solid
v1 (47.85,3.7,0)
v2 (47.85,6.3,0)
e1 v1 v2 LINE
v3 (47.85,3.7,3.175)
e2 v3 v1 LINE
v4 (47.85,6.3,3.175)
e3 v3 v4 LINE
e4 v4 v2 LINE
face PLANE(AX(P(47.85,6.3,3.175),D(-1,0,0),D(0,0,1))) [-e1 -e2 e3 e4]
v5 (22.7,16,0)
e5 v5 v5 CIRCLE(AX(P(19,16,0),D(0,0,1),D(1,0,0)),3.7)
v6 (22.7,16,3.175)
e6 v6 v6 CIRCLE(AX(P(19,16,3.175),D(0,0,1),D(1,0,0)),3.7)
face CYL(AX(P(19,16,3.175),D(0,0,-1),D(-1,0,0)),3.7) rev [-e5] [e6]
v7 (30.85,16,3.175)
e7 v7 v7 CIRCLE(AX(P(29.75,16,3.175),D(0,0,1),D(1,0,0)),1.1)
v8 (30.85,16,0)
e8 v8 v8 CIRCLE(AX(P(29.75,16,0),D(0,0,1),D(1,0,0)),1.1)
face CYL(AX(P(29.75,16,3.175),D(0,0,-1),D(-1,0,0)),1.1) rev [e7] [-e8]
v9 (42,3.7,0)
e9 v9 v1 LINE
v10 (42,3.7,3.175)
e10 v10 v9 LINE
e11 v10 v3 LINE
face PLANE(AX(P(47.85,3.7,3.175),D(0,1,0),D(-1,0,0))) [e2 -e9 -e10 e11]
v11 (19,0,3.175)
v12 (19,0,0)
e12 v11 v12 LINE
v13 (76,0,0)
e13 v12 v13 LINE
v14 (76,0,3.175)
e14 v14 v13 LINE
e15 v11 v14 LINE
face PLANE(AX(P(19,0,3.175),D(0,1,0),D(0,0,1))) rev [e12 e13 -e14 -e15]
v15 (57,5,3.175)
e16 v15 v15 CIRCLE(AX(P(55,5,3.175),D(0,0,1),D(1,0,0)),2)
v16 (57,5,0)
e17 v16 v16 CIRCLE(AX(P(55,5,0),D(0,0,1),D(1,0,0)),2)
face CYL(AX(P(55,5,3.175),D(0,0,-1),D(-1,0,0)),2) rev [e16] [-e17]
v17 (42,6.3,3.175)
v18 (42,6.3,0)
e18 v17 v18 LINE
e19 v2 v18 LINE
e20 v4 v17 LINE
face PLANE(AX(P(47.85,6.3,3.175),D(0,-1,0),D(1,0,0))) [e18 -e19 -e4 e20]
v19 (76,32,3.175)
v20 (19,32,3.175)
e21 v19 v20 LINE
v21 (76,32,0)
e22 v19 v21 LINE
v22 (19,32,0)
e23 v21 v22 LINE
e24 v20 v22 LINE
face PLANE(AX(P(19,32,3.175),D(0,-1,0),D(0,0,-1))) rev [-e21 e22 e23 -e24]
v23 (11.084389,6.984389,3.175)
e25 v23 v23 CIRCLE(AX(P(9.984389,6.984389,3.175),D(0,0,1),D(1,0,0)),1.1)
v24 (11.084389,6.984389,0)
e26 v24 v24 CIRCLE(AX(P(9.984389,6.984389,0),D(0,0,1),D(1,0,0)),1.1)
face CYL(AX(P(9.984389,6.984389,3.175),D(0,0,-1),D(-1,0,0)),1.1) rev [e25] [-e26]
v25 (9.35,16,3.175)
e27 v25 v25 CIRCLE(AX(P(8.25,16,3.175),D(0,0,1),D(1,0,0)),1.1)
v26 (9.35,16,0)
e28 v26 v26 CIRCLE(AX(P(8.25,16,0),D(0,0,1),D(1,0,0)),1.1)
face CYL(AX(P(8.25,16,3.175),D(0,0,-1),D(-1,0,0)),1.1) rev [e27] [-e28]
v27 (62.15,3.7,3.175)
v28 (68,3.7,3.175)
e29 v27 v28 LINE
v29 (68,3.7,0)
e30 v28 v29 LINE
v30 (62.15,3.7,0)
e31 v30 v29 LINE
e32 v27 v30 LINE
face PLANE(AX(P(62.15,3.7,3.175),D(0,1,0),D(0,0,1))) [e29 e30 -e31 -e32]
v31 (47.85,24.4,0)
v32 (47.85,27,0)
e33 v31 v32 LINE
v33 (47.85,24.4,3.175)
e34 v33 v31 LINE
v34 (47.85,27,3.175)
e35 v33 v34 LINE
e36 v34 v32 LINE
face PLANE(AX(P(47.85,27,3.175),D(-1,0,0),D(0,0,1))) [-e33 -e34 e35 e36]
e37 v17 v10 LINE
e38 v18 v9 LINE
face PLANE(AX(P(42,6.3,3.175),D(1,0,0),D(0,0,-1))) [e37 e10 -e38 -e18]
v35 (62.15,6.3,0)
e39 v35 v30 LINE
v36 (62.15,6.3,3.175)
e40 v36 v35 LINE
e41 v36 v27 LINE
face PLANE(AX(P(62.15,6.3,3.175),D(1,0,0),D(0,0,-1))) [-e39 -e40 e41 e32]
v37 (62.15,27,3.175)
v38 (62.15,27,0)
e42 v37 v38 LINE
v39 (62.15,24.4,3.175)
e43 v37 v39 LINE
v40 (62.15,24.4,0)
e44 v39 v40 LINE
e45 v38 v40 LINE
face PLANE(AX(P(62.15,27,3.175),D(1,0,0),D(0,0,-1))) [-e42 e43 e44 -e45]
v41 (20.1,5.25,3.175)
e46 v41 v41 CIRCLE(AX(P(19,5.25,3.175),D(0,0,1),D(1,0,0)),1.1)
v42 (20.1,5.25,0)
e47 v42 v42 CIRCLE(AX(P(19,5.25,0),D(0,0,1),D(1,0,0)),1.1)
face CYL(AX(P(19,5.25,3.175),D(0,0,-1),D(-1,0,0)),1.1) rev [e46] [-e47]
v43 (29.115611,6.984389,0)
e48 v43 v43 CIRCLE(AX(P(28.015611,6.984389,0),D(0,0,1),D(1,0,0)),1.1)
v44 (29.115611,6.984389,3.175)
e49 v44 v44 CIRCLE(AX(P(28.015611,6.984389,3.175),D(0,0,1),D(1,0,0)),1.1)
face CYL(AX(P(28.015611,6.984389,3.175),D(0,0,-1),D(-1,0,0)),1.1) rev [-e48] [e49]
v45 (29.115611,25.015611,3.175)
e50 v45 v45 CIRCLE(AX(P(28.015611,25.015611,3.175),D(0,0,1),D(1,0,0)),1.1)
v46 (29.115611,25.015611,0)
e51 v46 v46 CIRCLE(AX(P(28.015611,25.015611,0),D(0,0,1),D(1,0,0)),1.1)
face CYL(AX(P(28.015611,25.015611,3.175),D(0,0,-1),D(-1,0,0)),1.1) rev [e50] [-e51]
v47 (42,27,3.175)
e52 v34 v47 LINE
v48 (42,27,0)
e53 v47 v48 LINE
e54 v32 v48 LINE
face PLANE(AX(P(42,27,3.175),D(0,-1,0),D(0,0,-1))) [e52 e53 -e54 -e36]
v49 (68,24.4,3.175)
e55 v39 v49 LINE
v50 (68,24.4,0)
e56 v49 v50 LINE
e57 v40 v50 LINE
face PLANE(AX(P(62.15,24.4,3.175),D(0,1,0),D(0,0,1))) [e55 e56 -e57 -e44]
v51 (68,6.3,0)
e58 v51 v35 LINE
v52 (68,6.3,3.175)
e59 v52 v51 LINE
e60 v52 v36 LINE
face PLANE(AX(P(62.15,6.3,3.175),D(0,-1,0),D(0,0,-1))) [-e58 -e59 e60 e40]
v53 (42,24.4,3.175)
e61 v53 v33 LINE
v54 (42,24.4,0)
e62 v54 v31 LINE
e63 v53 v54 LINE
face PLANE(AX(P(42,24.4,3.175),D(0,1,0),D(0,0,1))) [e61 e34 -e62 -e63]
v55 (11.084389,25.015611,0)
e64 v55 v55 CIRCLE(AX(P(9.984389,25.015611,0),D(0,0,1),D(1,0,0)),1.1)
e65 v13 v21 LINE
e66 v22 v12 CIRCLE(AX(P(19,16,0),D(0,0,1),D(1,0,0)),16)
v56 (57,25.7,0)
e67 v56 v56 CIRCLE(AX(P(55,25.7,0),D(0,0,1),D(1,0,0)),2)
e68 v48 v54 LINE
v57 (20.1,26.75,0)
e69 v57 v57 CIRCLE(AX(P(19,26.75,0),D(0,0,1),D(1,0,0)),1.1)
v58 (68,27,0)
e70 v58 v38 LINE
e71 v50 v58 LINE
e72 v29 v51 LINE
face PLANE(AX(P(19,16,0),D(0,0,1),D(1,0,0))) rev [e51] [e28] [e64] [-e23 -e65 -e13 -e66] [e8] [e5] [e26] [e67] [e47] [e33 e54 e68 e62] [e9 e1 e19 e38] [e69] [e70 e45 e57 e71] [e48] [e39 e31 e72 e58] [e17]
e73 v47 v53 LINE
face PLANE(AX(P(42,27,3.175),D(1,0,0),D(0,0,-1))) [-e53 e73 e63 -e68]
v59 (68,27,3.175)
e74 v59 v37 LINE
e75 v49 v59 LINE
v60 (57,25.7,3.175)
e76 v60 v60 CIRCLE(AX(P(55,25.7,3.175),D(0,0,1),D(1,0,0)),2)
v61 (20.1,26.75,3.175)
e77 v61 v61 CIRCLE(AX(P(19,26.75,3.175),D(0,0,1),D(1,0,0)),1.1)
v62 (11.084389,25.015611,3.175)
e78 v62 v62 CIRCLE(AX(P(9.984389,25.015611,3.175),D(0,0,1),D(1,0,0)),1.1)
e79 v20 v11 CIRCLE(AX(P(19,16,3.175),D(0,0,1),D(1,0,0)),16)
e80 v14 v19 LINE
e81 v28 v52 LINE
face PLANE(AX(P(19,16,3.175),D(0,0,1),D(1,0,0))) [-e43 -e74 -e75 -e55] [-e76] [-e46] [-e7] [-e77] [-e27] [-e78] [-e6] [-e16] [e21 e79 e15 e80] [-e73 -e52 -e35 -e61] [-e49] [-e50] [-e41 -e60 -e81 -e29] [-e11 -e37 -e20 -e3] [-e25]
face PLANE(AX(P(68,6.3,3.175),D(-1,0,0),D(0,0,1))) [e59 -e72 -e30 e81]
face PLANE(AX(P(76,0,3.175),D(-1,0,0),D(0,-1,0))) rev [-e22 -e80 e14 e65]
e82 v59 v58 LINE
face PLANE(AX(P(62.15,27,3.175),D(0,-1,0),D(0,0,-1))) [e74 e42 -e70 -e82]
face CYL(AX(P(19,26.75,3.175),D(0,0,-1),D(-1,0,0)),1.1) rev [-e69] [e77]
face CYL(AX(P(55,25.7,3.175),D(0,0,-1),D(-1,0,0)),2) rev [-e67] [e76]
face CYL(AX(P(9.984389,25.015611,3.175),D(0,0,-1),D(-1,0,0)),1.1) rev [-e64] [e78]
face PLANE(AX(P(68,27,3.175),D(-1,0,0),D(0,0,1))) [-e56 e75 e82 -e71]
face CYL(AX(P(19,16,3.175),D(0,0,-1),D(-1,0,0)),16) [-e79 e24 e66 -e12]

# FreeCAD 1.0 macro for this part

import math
import FreeCAD as App
import Part
import Sketcher

doc = App.newDocument("Part")
body = doc.addObject("PartDesign::Body", "Body")

# Sketch on XY plane
sketch1 = doc.addObject("Sketcher::SketchObject", "Sketch")
body.addObject(sketch1)
sketch1.AttachmentSupport = (doc.XY_Plane, [""])
sketch1.MapMode = "FlatFace"
sketch1.addGeometry([
    Part.LineSegment(App.Vector(19, 0, 0), App.Vector(76, 0, 0)),  # 0
    Part.LineSegment(App.Vector(76, 0, 0), App.Vector(76, 32, 0)),  # 1
    Part.LineSegment(App.Vector(76, 32, 0), App.Vector(19, 32, 0)),  # 2
    Part.ArcOfCircle(Part.Circle(App.Vector(19, 16, 0), App.Vector(0, 0, 1), 16), math.radians(90), math.radians(270)),  # 3
    Part.Circle(App.Vector(19, 5.2, 0), App.Vector(0, 0, 1), 1.1),  # 4
    Part.Circle(App.Vector(10, 7, 0), App.Vector(0, 0, 1), 1.1),  # 5
    Part.Circle(App.Vector(28, 7, 0), App.Vector(0, 0, 1), 1.1),  # 6
    Part.LineSegment(App.Vector(47.9, 3.7, 0), App.Vector(42, 3.7, 0)),  # 7
    Part.LineSegment(App.Vector(42, 3.7, 0), App.Vector(42, 6.3, 0)),  # 8
    Part.LineSegment(App.Vector(42, 6.3, 0), App.Vector(47.9, 6.3, 0)),  # 9
    Part.LineSegment(App.Vector(47.9, 6.3, 0), App.Vector(47.9, 3.7, 0)),  # 10
    Part.Circle(App.Vector(55, 5, 0), App.Vector(0, 0, 1), 2),  # 11
    Part.LineSegment(App.Vector(68, 3.7, 0), App.Vector(62.1, 3.7, 0)),  # 12
    Part.LineSegment(App.Vector(62.1, 3.7, 0), App.Vector(62.1, 6.3, 0)),  # 13
    Part.LineSegment(App.Vector(62.1, 6.3, 0), App.Vector(68, 6.3, 0)),  # 14
    Part.LineSegment(App.Vector(68, 6.3, 0), App.Vector(68, 3.7, 0)),  # 15
    Part.Circle(App.Vector(8.2, 16, 0), App.Vector(0, 0, 1), 1.1),  # 16
    Part.Circle(App.Vector(19, 16, 0), App.Vector(0, 0, 1), 3.7),  # 17
    Part.Circle(App.Vector(29.8, 16, 0), App.Vector(0, 0, 1), 1.1),  # 18
    Part.Circle(App.Vector(10, 25, 0), App.Vector(0, 0, 1), 1.1),  # 19
    Part.Circle(App.Vector(19, 26.8, 0), App.Vector(0, 0, 1), 1.1),  # 20
    Part.Circle(App.Vector(28, 25, 0), App.Vector(0, 0, 1), 1.1),  # 21
    Part.LineSegment(App.Vector(47.9, 24.4, 0), App.Vector(42, 24.4, 0)),  # 22
    Part.LineSegment(App.Vector(42, 24.4, 0), App.Vector(42, 27, 0)),  # 23
    Part.LineSegment(App.Vector(42, 27, 0), App.Vector(47.9, 27, 0)),  # 24
    Part.LineSegment(App.Vector(47.9, 27, 0), App.Vector(47.9, 24.4, 0)),  # 25
    Part.Circle(App.Vector(55, 25.7, 0), App.Vector(0, 0, 1), 2),  # 26
    Part.LineSegment(App.Vector(68, 24.4, 0), App.Vector(62.1, 24.4, 0)),  # 27
    Part.LineSegment(App.Vector(62.1, 24.4, 0), App.Vector(62.1, 27, 0)),  # 28
    Part.LineSegment(App.Vector(62.1, 27, 0), App.Vector(68, 27, 0)),  # 29
    Part.LineSegment(App.Vector(68, 27, 0), App.Vector(68, 24.4, 0)),  # 30
], False)
sketch1.addConstraint([
    Sketcher.Constraint("Coincident", 0, 2, 1, 1),
    Sketcher.Constraint("Coincident", 1, 2, 2, 1),
    Sketcher.Constraint("Tangent", 2, 2, 3, 1),
    Sketcher.Constraint("Tangent", 3, 2, 0, 1),
    Sketcher.Constraint("Coincident", 7, 2, 8, 1),
    Sketcher.Constraint("Coincident", 8, 2, 9, 1),
    Sketcher.Constraint("Coincident", 9, 2, 10, 1),
    Sketcher.Constraint("Coincident", 10, 2, 7, 1),
    Sketcher.Constraint("Coincident", 12, 2, 13, 1),
    Sketcher.Constraint("Coincident", 13, 2, 14, 1),
    Sketcher.Constraint("Coincident", 14, 2, 15, 1),
    Sketcher.Constraint("Coincident", 15, 2, 12, 1),
    Sketcher.Constraint("Coincident", 22, 2, 23, 1),
    Sketcher.Constraint("Coincident", 23, 2, 24, 1),
    Sketcher.Constraint("Coincident", 24, 2, 25, 1),
    Sketcher.Constraint("Coincident", 25, 2, 22, 1),
    Sketcher.Constraint("Coincident", 27, 2, 28, 1),
    Sketcher.Constraint("Coincident", 28, 2, 29, 1),
    Sketcher.Constraint("Coincident", 29, 2, 30, 1),
    Sketcher.Constraint("Coincident", 30, 2, 27, 1),
    Sketcher.Constraint("Horizontal", 0),
    Sketcher.Constraint("Vertical", 1),
    Sketcher.Constraint("Horizontal", 2),
    Sketcher.Constraint("Horizontal", 7),
    Sketcher.Constraint("Vertical", 8),
    Sketcher.Constraint("Horizontal", 9),
    Sketcher.Constraint("Vertical", 10),
    Sketcher.Constraint("Horizontal", 12),
    Sketcher.Constraint("Vertical", 13),
    Sketcher.Constraint("Horizontal", 14),
    Sketcher.Constraint("Vertical", 15),
    Sketcher.Constraint("Horizontal", 22),
    Sketcher.Constraint("Vertical", 23),
    Sketcher.Constraint("Horizontal", 24),
    Sketcher.Constraint("Vertical", 25),
    Sketcher.Constraint("Horizontal", 27),
    Sketcher.Constraint("Vertical", 28),
    Sketcher.Constraint("Horizontal", 29),
    Sketcher.Constraint("Vertical", 30),
    Sketcher.Constraint("Coincident", 17, 3, 3, 3),
    Sketcher.Constraint("Equal", 4, 5),
    Sketcher.Constraint("Equal", 5, 6),
    Sketcher.Constraint("Equal", 6, 16),
    Sketcher.Constraint("Equal", 16, 18),
    Sketcher.Constraint("Equal", 18, 19),
    Sketcher.Constraint("Equal", 19, 20),
    Sketcher.Constraint("Equal", 20, 21),
    Sketcher.Constraint("Equal", 11, 26),
    Sketcher.Constraint("PointOnObject", 0, 2, -1),
    Sketcher.Constraint("Horizontal", 5, 3, 6, 3),
    Sketcher.Constraint("Horizontal", 3, 3, 16, 3),
    Sketcher.Constraint("Horizontal", 17, 3, 18, 3),
    Sketcher.Constraint("Horizontal", 19, 3, 21, 3),
    Sketcher.Constraint("Horizontal", 10, 2, 12, 2),
    Sketcher.Constraint("Horizontal", 9, 2, 13, 2),
    Sketcher.Constraint("Horizontal", 25, 2, 27, 2),
    Sketcher.Constraint("Horizontal", 24, 2, 28, 2),
    Sketcher.Constraint("Vertical", 3, 3, 4, 3),
    Sketcher.Constraint("Vertical", 5, 3, 19, 3),
    Sketcher.Constraint("Vertical", 17, 3, 20, 3),
    Sketcher.Constraint("Vertical", 6, 3, 21, 3),
    Sketcher.Constraint("Vertical", 11, 3, 26, 3),
    Sketcher.Constraint("Vertical", 8, 2, 22, 2),
    Sketcher.Constraint("Vertical", 10, 2, 24, 2),
    Sketcher.Constraint("Vertical", 13, 2, 27, 2),
    Sketcher.Constraint("Vertical", 15, 2, 29, 2),
    Sketcher.Constraint("Equal", 9, 12),
    Sketcher.Constraint("Equal", 15, 23),
    Sketcher.Constraint("Diameter", 11, 4.0),
    Sketcher.Constraint("Radius", 3, 16.0),
    Sketcher.Constraint("Diameter", 4, 2.2),
    Sketcher.Constraint("Diameter", 17, 7.4),
    Sketcher.Constraint("DistanceX", 0, 1, 0, 2, 57.0),
    Sketcher.Constraint("DistanceY", 8, 1, 8, 2, 2.6),
    Sketcher.Constraint("DistanceX", -1, 1, 3, 3, 19.0),
    Sketcher.Constraint("DistanceX", -1, 1, 11, 3, 55.0),
    Sketcher.Constraint("DistanceY", -1, 1, 11, 3, 5.0),
    Sketcher.Constraint("DistanceX", -1, 1, 7, 2, 42.0),
    Sketcher.Constraint("DistanceX", -1, 1, 14, 2, 68.0),
    Sketcher.Constraint("DistanceY", -1, 1, 23, 2, 27.0),
    Sketcher.Constraint("DistanceX", 7, 2, 7, 1, 5.85),
    Sketcher.Constraint("DistanceY", -1, 1, 26, 3, 25.7),
    Sketcher.Constraint("DistanceY", -1, 1, 7, 2, 3.7),
    Sketcher.Constraint("DistanceX", 16, 3, 18, 3, 21.5),
    Sketcher.Constraint("DistanceX", 18, 3, 9, 2, 18.1),
    Sketcher.Constraint("DistanceY", -1, 1, 4, 3, 5.25),
    Sketcher.Constraint("DistanceY", -1, 1, 20, 3, 26.75),
    Sketcher.Constraint("DistanceX", -1, 1, 5, 3, 9.984389),
    Sketcher.Constraint("DistanceY", -1, 1, 5, 3, 6.984389),
    Sketcher.Constraint("DistanceX", -1, 1, 6, 3, 28.015611),
    Sketcher.Constraint("DistanceY", -1, 1, 19, 3, 25.015611),
])
pad1 = doc.addObject("PartDesign::Pad", "Pad")
body.addObject(pad1)
pad1.Profile = sketch1
pad1.Length = 3.175

doc.recompute()
